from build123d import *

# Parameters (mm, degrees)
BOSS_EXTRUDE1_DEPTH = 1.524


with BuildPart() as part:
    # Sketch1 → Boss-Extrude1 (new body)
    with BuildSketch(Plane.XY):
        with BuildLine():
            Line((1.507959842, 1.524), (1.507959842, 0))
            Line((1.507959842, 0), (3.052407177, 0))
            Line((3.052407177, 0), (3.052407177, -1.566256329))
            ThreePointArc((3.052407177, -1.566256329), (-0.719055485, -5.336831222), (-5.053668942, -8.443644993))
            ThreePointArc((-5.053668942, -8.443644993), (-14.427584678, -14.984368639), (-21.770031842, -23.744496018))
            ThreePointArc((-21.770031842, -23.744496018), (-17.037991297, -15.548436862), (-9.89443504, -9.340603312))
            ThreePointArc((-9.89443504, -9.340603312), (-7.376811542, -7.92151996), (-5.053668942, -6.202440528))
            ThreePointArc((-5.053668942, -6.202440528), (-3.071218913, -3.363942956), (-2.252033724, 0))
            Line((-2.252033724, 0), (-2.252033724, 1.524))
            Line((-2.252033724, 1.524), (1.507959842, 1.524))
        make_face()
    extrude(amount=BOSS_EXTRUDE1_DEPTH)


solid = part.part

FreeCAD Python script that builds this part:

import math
import FreeCAD as App
import Part
import Sketcher

V = App.Vector
Q = App.Units.Quantity

doc = App.newDocument("Part")
body = doc.addObject("PartDesign::Body", "Body")

# Sketch on XY plane
sketch1 = body.newObject("Sketcher::SketchObject", "Sketch")
sketch1.AttachmentSupport = (doc.getObject("XY_Plane"), [""])
sketch1.MapMode = "FlatFace"
sketch1.addGeometry(Part.LineSegment(V(1.5, 0, 0), V(1.5, 1.5, 0)), False)
sketch1.addGeometry(Part.LineSegment(V(1.5, 1.5, 0), V(-2.3, 1.5, 0)), False)
sketch1.addGeometry(Part.LineSegment(V(-2.3, 1.5, 0), V(-2.3, 0, 0)), False)
sketch1.addGeometry(Part.ArcOfCircle(Part.Circle(V(-11.6, 0.5, 0), V(0, 0, 1), 9.4), math.radians(-46), math.radians(-3)), False)
sketch1.addGeometry(Part.ArcOfCircle(Part.Circle(V(-20.1, 11.7, 0), V(0, 0, 1), 23.4), math.radians(-64.14), math.radians(-49.95)), False)
sketch1.addGeometry(Part.ArcOfCircle(Part.Circle(V(5.1, -33.8, 0), V(0, 0, 1), 28.7), math.radians(121), math.radians(160)), False)
sketch1.addGeometry(Part.ArcOfCircle(Part.Circle(V(14.9, -47, 0), V(0, 0, 1), 43.4), math.radians(117), math.radians(148)), False)
sketch1.addGeometry(Part.ArcOfCircle(Part.Circle(V(-21.9, 19.6, 0), V(0, 0, 1), 32.7), math.radians(-59.05), math.radians(-40.33)), False)
sketch1.addGeometry(Part.LineSegment(V(3.1, -1.6, 0), V(3.1, 0, 0)), False)
sketch1.addGeometry(Part.LineSegment(V(3.1, 0, 0), V(1.5, 0, 0)), False)
sketch1.addConstraint(Sketcher.Constraint("Coincident", 0, 2, 1, 1))
sketch1.addConstraint(Sketcher.Constraint("Coincident", 1, 2, 2, 1))
sketch1.addConstraint(Sketcher.Constraint("Coincident", 2, 2, 3, 2))
sketch1.addConstraint(Sketcher.Constraint("Coincident", 3, 1, 4, 2))
sketch1.addConstraint(Sketcher.Constraint("Coincident", 4, 1, 5, 1))
sketch1.addConstraint(Sketcher.Constraint("Coincident", 5, 2, 6, 2))
sketch1.addConstraint(Sketcher.Constraint("Coincident", 6, 1, 7, 1))
sketch1.addConstraint(Sketcher.Constraint("Coincident", 7, 2, 8, 1))
sketch1.addConstraint(Sketcher.Constraint("Coincident", 8, 2, 9, 1))
sketch1.addConstraint(Sketcher.Constraint("Coincident", 9, 2, 0, 1))
sketch1.addConstraint(Sketcher.Constraint("Vertical", 0))
sketch1.addConstraint(Sketcher.Constraint("Horizontal", 1))
sketch1.addConstraint(Sketcher.Constraint("Vertical", 2))
sketch1.addConstraint(Sketcher.Constraint("Vertical", 8))
sketch1.addConstraint(Sketcher.Constraint("Horizontal", 9))
sketch1.addConstraint(Sketcher.Constraint("PointOnObject", 2, 2, -1))
sketch1.addConstraint(Sketcher.Constraint("PointOnObject", 8, 2, -1))
sketch1.addConstraint(Sketcher.Constraint("Vertical", 3, 1, 6, 1))
sketch1.addConstraint(Sketcher.Constraint("DistanceY", 0, 1, 0, 2, Q("0.06 in")))
sketch1.addConstraint(Sketcher.Constraint("Radius", 3, 9.391162))
sketch1.addConstraint(Sketcher.Constraint("Radius", 4, 23.36157))
sketch1.addConstraint(Sketcher.Constraint("Radius", 7, 32.673352))
sketch1.addConstraint(Sketcher.Constraint("Radius", 5, 28.657487))
sketch1.addConstraint(Sketcher.Constraint("Radius", 6, 43.423703))
sketch1.addConstraint(Sketcher.Constraint("DistanceX", 5, 3, 6, 3, 9.818099))
sketch1.addConstraint(Sketcher.Constraint("DistanceY", 4, 3, 7, 3, 7.896399))
sketch1.addConstraint(Sketcher.Constraint("DistanceY", 3, 3, 7, 3, 19.075702))
sketch1.addConstraint(Sketcher.Constraint("DistanceX", 1, 2, 5, 3, 7.325399))
sketch1.addConstraint(Sketcher.Constraint("DistanceX", 4, 1, 2, 2, 7.642401))
sketch1.addConstraint(Sketcher.Constraint("DistanceX", 5, 2, 2, 2, 19.517998))
sketch1.addConstraint(Sketcher.Constraint("DistanceX", 1, 2, 1, 1, 3.759994))
sketch1.addConstraint(Sketcher.Constraint("DistanceX", 9, 2, 9, 1, 1.544447))
sketch1.addConstraint(Sketcher.Constraint("DistanceY", 8, 1, 8, 2, 1.566256))
sketch1.addConstraint(Sketcher.Constraint("DistanceX", 3, 3, -1, 1, 11.629772))
sketch1.addConstraint(Sketcher.Constraint("DistanceY", 6, 3, -1, 1, 47.015781))
pad1 = body.newObject("PartDesign::Pad", "Pad")
pad1.Profile = sketch1
pad1.Length = Q("0.06 in")

doc.recompute()
